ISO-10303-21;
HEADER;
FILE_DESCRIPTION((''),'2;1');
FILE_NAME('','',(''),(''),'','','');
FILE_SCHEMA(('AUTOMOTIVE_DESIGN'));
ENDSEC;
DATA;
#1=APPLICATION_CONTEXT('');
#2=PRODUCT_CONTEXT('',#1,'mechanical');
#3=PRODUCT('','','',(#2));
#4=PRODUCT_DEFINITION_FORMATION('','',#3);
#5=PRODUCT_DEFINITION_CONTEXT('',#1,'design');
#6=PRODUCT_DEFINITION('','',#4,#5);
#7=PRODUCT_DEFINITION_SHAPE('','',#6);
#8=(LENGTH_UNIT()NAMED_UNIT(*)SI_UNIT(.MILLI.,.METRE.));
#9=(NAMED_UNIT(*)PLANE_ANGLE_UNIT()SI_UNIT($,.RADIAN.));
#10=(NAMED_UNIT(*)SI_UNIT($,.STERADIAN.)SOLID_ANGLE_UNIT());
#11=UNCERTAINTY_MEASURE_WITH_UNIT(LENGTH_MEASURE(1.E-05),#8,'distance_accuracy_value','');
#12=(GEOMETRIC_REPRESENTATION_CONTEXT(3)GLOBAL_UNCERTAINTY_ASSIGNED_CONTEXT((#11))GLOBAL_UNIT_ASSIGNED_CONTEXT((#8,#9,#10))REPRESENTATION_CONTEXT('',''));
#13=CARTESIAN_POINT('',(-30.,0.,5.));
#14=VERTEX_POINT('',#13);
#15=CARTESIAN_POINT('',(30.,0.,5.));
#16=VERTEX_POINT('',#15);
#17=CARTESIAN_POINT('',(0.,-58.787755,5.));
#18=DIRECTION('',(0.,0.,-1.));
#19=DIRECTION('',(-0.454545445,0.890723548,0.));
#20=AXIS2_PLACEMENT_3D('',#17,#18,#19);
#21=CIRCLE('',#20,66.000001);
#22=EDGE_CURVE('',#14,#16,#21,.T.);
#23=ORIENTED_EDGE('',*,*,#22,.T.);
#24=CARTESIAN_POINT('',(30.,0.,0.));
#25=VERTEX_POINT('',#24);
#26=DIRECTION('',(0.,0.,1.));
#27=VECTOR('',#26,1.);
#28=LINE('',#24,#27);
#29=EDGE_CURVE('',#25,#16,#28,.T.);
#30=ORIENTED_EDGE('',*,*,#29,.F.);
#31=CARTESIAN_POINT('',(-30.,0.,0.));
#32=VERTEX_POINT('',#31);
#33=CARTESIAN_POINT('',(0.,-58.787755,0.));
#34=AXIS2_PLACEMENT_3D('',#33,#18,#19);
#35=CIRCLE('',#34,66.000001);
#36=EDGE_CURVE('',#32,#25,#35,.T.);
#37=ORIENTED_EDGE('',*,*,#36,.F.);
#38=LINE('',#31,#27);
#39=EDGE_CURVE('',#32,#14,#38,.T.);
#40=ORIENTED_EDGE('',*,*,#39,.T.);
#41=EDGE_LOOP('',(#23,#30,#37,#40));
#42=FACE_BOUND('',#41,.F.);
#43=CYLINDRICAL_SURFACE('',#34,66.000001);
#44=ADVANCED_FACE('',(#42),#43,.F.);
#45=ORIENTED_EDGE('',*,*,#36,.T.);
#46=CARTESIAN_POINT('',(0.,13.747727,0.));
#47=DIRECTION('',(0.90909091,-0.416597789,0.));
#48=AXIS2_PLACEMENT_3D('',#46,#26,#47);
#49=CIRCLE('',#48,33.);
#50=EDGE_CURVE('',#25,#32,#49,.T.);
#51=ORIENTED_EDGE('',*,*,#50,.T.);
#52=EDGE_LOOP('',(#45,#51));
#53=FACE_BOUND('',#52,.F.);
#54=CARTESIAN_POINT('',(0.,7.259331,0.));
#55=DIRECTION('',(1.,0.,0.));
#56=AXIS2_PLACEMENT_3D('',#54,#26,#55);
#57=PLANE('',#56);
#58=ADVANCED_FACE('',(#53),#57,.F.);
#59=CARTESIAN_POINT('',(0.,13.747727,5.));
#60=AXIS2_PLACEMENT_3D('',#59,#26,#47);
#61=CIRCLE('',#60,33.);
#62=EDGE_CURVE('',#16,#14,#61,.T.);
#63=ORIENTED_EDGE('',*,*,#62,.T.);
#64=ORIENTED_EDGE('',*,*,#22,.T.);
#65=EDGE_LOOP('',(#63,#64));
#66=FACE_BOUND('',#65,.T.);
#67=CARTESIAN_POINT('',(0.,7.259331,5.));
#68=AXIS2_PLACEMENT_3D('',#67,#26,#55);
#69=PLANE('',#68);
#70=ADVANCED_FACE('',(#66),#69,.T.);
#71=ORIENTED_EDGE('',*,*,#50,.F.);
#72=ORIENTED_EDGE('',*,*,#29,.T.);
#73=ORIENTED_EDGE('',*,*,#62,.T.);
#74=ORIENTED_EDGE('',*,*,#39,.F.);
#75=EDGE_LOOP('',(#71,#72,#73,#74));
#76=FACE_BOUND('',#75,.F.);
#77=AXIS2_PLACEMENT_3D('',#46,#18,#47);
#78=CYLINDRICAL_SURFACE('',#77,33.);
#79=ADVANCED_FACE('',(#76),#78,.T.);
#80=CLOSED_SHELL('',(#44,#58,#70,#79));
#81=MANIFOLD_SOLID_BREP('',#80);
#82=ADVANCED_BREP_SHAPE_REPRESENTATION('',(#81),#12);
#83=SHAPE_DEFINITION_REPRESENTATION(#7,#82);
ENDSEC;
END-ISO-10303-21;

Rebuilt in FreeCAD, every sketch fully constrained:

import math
import FreeCAD as App
import Part
import Sketcher

doc = App.newDocument("Part")
body = doc.addObject("PartDesign::Body", "Body")

# Sketch on XY plane
sketch1 = body.newObject("Sketcher::SketchObject", "Sketch")
sketch1.AttachmentSupport = (doc.getObject("XY_Plane"), [""])
sketch1.MapMode = "FlatFace"
sketch1.addGeometry(Part.ArcOfCircle(Part.Circle(App.Vector(0, -58.787755, 0), App.Vector(0, 0, 1), 66.000001), math.radians(62.964309), math.radians(117.035691)), False)
sketch1.addGeometry(Part.ArcOfCircle(Part.Circle(App.Vector(0, 13.747727, 0), App.Vector(0, 0, 1), 33), math.radians(-24.619977), math.radians(204.619977)), False)
sketch1.addConstraint(Sketcher.Constraint("Coincident", 0, 1, 1, 1))
sketch1.addConstraint(Sketcher.Constraint("Coincident", 1, 2, 0, 2))
sketch1.addConstraint(Sketcher.Constraint("Symmetric", 0, 1, 1, 2, -1, 1))
sketch1.addConstraint(Sketcher.Constraint("PointOnObject", 0, 3, -2))
sketch1.addConstraint(Sketcher.Constraint("Radius", 0, 66.000001))
sketch1.addConstraint(Sketcher.Constraint("Radius", 1, 33.0))
sketch1.addConstraint(Sketcher.Constraint("DistanceX", -1, 1, 0, 1, 30.0))
pad1 = body.newObject("PartDesign::Pad", "Pad")
pad1.Profile = sketch1
pad1.Length = 5

doc.recompute()
